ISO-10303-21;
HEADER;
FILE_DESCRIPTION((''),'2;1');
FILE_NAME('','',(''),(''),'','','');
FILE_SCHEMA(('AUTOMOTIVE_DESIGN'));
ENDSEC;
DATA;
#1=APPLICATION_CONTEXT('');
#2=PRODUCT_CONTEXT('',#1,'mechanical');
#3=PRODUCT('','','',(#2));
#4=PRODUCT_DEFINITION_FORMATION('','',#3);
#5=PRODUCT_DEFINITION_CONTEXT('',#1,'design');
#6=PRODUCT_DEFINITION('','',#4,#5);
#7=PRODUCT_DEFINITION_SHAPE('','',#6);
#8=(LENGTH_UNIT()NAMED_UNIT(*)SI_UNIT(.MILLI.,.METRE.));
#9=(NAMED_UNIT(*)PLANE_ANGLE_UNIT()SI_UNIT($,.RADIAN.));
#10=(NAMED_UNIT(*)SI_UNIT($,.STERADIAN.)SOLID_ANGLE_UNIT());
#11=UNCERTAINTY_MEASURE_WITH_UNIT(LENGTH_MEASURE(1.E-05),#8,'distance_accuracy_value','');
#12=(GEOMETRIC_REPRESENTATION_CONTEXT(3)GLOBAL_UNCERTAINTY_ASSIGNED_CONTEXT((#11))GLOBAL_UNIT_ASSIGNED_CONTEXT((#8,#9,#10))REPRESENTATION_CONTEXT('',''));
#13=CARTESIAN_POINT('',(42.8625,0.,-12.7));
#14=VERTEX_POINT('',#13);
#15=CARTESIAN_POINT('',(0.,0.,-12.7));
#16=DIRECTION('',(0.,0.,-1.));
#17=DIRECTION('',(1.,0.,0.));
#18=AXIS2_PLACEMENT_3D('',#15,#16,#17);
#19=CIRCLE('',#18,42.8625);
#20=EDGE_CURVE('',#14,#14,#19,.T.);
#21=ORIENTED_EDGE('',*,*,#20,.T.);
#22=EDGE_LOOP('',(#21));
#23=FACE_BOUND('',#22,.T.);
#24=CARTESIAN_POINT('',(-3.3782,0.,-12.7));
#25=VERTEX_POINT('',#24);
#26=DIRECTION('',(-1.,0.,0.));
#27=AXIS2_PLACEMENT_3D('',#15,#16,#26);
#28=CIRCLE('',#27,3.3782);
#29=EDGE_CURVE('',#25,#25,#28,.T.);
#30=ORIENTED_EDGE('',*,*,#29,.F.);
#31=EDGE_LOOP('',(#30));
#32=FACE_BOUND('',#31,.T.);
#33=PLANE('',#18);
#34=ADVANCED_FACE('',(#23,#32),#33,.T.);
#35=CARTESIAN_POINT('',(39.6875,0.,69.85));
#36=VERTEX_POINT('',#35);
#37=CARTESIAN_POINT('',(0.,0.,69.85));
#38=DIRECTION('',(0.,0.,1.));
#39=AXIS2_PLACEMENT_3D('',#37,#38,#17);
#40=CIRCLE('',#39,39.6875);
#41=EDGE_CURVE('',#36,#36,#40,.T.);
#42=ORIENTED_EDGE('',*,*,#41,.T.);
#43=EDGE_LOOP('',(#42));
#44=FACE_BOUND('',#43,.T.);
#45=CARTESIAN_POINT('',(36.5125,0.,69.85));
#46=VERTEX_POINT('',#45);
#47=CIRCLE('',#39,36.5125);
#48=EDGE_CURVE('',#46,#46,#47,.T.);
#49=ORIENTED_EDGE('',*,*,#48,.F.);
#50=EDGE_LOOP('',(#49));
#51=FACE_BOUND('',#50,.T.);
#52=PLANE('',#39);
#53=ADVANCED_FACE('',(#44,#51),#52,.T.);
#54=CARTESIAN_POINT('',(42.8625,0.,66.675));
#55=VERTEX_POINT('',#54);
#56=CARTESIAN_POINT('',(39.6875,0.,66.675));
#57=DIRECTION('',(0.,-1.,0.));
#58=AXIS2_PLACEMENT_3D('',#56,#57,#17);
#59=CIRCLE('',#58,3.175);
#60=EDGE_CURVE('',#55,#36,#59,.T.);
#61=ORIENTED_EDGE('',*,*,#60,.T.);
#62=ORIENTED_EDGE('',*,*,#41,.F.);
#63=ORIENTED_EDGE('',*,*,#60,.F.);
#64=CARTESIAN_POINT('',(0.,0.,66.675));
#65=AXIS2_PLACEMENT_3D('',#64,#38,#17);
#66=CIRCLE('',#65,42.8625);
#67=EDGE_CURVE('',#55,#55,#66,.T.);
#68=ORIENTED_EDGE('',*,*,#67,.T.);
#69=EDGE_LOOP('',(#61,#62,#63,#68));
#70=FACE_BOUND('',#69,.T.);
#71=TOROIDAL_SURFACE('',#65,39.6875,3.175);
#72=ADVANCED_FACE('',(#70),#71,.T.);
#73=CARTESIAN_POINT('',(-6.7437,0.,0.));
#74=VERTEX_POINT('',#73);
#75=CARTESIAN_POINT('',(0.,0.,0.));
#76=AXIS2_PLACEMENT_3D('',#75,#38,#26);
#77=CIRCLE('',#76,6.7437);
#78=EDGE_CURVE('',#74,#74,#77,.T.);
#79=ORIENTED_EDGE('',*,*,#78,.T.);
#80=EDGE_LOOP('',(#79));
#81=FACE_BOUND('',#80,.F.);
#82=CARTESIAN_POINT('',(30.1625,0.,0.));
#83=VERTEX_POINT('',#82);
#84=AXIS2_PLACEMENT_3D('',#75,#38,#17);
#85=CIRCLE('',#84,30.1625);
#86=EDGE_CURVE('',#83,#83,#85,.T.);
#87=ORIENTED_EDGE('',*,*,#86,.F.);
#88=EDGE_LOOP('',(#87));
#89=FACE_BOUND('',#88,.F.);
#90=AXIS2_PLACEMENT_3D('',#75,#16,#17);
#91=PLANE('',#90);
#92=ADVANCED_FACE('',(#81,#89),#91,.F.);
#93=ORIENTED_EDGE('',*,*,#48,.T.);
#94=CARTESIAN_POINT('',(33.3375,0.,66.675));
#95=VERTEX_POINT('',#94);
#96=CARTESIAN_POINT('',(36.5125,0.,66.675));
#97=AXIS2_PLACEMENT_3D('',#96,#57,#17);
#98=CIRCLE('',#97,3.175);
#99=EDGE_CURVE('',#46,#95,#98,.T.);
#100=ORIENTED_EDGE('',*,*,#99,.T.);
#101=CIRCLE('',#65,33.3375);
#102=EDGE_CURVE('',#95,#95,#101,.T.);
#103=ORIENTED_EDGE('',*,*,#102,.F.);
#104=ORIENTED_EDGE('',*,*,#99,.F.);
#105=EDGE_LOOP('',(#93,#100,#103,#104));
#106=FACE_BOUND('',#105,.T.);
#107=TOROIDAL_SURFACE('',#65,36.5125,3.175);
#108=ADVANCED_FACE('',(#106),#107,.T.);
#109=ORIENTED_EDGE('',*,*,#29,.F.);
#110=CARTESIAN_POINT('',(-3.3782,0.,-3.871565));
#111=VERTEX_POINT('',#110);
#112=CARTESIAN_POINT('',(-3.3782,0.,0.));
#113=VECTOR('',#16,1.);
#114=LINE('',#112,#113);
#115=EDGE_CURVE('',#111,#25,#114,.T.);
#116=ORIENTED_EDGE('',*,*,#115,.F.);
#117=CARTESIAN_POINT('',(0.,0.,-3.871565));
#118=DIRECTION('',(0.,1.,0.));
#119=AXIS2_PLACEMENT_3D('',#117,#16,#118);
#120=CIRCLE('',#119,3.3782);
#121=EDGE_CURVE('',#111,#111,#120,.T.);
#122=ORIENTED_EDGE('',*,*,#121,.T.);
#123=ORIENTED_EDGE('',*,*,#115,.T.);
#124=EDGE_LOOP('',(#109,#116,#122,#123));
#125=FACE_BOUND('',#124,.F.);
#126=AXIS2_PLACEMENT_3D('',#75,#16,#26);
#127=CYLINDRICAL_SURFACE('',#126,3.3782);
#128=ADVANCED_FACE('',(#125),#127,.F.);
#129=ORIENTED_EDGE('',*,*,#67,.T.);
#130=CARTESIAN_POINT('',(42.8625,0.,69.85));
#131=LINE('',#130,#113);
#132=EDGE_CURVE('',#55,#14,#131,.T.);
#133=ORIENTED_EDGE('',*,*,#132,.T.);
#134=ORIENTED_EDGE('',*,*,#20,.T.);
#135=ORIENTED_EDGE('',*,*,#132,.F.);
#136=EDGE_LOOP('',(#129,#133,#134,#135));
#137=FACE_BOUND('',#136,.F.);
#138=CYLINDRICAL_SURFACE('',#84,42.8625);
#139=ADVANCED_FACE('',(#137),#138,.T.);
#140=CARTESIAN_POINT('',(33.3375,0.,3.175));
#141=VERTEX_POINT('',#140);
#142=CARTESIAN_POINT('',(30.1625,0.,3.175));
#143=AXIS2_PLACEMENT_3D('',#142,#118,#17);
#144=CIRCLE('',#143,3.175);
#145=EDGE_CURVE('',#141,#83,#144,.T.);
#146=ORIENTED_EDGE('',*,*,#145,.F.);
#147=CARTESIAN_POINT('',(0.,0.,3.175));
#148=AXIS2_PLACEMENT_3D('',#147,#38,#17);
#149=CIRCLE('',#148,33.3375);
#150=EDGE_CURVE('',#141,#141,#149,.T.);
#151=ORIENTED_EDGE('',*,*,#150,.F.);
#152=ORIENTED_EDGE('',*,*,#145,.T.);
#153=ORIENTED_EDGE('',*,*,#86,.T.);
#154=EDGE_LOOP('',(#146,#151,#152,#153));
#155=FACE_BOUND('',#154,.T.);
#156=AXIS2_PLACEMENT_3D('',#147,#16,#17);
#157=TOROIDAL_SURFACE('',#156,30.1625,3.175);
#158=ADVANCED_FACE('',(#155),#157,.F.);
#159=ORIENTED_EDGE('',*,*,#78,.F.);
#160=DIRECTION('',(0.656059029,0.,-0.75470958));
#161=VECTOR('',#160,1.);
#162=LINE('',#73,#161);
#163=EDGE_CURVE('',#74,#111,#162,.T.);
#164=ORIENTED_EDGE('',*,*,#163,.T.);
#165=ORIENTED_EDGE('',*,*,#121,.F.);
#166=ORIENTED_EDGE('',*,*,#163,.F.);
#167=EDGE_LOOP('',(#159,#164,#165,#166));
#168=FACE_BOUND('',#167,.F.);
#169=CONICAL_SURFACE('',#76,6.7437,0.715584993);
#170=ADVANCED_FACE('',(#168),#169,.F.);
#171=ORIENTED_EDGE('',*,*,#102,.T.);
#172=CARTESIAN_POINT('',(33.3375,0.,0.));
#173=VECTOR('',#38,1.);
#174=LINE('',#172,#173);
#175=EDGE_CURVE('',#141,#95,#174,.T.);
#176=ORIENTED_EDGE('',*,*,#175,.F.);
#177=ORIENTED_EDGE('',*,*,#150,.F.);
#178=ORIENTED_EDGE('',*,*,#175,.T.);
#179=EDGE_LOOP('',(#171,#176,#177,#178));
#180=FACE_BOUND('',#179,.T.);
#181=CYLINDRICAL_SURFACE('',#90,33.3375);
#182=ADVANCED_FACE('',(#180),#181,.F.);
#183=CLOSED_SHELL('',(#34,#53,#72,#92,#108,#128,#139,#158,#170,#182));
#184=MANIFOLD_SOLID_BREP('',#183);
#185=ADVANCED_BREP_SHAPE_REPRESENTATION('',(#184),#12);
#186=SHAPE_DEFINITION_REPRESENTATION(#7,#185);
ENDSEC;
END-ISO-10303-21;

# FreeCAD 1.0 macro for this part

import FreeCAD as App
import Part
import Sketcher

V = App.Vector
Q = App.Units.Quantity


def edges_at(feature, points):
    """Names of the edges that pass closest to the given points."""
    edges = feature.Shape.Edges
    near = lambda p: min(range(len(edges)), key=lambda i: edges[i].distToShape(Part.Vertex(*p))[0])
    return sorted({f"Edge{near(p) + 1}" for p in points})

doc = App.newDocument("Part")
params = doc.addObject("Spreadsheet::Sheet", "Params")
for row, (alias, value) in enumerate([
    ("sketch1_diameter", "3.375 in"),
    ("sketch1_diameter2", "2.625 in"),
    ("pad1_length", "2.75 in"),
    ("sketch2_diameter", "3.375 in"),
    ("pad2_length", "0.5 in"),
    ("sketch3_diameter", "0.266 in"),
    ("hole_diameter", "0.266 in"),
    ("hole_csink_diameter", "0.531 in"),
    ("fillet_radius", "0.125 in"),
], start=1):
    params.set(f"A{row}", alias)
    params.set(f"B{row}", "=" + value)
    params.setAlias(f"B{row}", alias)

body = doc.addObject("PartDesign::Body", "Body")

# Sketch on XY plane
sketch1 = body.newObject("Sketcher::SketchObject", "Sketch")
sketch1.AttachmentSupport = (doc.getObject("XY_Plane"), [""])
sketch1.MapMode = "FlatFace"
sketch1.addGeometry(Part.Circle(V(0, 0, 0), V(0, 0, 1), 42.8625), False)
sketch1.addGeometry(Part.Circle(V(0, 0, 0), V(0, 0, 1), 33.3375), False)
sketch1.addConstraint(Sketcher.Constraint("Coincident", 0, 3, -1, 1))
sketch1.addConstraint(Sketcher.Constraint("Coincident", 1, 3, -1, 1))
sketch1.addConstraint(Sketcher.Constraint("Diameter", 0, Q("3.375 in")))
sketch1.addConstraint(Sketcher.Constraint("Diameter", 1, Q("2.625 in")))
sketch1.setExpression("Constraints[2]", "Params.sketch1_diameter")
sketch1.setExpression("Constraints[3]", "Params.sketch1_diameter2")
pad1 = body.newObject("PartDesign::Pad", "Pad")
pad1.Profile = sketch1
pad1.setExpression("Length", "Params.pad1_length")

# Sketch on XY plane
sketch2 = body.newObject("Sketcher::SketchObject", "Sketch001")
sketch2.AttachmentSupport = (doc.getObject("XY_Plane"), [""])
sketch2.MapMode = "FlatFace"
sketch2.addGeometry(Part.Circle(V(0, 0, 0), V(0, 0, 1), 42.8625), False)
sketch2.addConstraint(Sketcher.Constraint("Coincident", 0, 3, -1, 1))
sketch2.addConstraint(Sketcher.Constraint("Diameter", 0, Q("3.375 in")))
sketch2.setExpression("Constraints[1]", "Params.sketch2_diameter")
pad2 = body.newObject("PartDesign::Pad", "Pad001")
pad2.Profile = sketch2
pad2.setExpression("Length", "Params.pad2_length")
pad2.Reversed = True

# Sketch on XY plane
sketch3 = body.newObject("Sketcher::SketchObject", "Sketch002")
sketch3.AttachmentSupport = (doc.getObject("XY_Plane"), [""])
sketch3.MapMode = "FlatFace"
sketch3.addGeometry(Part.Circle(V(0, 0, 0), V(0, 0, 1), 3.3782), False)
sketch3.addConstraint(Sketcher.Constraint("Coincident", 0, 3, -1, 1))
sketch3.addConstraint(Sketcher.Constraint("Diameter", 0, Q("0.266 in")))
sketch3.setExpression("Constraints[1]", "Params.sketch3_diameter")
doc.recompute()
hole = body.newObject("PartDesign::Hole", "Hole")
hole.Profile = sketch3
hole.ThreadType = "None"
hole.setExpression("Diameter", "Params.hole_diameter")
hole.DepthType = "ThroughAll"
hole.HoleCutType = "Countersink"
hole.setExpression("HoleCutDiameter", "Params.hole_csink_diameter")
hole.HoleCutCountersinkAngle = 82
doc.recompute()

fillet = body.newObject("PartDesign::Fillet", "Fillet")
fillet.Base = (hole, edges_at(hole, [(-33.337, 0, 0), (-33.337, 0, 69.85), (-42.862, 0, 69.85)]))
fillet.setExpression("Radius", "Params.fillet_radius")

doc.recompute()
